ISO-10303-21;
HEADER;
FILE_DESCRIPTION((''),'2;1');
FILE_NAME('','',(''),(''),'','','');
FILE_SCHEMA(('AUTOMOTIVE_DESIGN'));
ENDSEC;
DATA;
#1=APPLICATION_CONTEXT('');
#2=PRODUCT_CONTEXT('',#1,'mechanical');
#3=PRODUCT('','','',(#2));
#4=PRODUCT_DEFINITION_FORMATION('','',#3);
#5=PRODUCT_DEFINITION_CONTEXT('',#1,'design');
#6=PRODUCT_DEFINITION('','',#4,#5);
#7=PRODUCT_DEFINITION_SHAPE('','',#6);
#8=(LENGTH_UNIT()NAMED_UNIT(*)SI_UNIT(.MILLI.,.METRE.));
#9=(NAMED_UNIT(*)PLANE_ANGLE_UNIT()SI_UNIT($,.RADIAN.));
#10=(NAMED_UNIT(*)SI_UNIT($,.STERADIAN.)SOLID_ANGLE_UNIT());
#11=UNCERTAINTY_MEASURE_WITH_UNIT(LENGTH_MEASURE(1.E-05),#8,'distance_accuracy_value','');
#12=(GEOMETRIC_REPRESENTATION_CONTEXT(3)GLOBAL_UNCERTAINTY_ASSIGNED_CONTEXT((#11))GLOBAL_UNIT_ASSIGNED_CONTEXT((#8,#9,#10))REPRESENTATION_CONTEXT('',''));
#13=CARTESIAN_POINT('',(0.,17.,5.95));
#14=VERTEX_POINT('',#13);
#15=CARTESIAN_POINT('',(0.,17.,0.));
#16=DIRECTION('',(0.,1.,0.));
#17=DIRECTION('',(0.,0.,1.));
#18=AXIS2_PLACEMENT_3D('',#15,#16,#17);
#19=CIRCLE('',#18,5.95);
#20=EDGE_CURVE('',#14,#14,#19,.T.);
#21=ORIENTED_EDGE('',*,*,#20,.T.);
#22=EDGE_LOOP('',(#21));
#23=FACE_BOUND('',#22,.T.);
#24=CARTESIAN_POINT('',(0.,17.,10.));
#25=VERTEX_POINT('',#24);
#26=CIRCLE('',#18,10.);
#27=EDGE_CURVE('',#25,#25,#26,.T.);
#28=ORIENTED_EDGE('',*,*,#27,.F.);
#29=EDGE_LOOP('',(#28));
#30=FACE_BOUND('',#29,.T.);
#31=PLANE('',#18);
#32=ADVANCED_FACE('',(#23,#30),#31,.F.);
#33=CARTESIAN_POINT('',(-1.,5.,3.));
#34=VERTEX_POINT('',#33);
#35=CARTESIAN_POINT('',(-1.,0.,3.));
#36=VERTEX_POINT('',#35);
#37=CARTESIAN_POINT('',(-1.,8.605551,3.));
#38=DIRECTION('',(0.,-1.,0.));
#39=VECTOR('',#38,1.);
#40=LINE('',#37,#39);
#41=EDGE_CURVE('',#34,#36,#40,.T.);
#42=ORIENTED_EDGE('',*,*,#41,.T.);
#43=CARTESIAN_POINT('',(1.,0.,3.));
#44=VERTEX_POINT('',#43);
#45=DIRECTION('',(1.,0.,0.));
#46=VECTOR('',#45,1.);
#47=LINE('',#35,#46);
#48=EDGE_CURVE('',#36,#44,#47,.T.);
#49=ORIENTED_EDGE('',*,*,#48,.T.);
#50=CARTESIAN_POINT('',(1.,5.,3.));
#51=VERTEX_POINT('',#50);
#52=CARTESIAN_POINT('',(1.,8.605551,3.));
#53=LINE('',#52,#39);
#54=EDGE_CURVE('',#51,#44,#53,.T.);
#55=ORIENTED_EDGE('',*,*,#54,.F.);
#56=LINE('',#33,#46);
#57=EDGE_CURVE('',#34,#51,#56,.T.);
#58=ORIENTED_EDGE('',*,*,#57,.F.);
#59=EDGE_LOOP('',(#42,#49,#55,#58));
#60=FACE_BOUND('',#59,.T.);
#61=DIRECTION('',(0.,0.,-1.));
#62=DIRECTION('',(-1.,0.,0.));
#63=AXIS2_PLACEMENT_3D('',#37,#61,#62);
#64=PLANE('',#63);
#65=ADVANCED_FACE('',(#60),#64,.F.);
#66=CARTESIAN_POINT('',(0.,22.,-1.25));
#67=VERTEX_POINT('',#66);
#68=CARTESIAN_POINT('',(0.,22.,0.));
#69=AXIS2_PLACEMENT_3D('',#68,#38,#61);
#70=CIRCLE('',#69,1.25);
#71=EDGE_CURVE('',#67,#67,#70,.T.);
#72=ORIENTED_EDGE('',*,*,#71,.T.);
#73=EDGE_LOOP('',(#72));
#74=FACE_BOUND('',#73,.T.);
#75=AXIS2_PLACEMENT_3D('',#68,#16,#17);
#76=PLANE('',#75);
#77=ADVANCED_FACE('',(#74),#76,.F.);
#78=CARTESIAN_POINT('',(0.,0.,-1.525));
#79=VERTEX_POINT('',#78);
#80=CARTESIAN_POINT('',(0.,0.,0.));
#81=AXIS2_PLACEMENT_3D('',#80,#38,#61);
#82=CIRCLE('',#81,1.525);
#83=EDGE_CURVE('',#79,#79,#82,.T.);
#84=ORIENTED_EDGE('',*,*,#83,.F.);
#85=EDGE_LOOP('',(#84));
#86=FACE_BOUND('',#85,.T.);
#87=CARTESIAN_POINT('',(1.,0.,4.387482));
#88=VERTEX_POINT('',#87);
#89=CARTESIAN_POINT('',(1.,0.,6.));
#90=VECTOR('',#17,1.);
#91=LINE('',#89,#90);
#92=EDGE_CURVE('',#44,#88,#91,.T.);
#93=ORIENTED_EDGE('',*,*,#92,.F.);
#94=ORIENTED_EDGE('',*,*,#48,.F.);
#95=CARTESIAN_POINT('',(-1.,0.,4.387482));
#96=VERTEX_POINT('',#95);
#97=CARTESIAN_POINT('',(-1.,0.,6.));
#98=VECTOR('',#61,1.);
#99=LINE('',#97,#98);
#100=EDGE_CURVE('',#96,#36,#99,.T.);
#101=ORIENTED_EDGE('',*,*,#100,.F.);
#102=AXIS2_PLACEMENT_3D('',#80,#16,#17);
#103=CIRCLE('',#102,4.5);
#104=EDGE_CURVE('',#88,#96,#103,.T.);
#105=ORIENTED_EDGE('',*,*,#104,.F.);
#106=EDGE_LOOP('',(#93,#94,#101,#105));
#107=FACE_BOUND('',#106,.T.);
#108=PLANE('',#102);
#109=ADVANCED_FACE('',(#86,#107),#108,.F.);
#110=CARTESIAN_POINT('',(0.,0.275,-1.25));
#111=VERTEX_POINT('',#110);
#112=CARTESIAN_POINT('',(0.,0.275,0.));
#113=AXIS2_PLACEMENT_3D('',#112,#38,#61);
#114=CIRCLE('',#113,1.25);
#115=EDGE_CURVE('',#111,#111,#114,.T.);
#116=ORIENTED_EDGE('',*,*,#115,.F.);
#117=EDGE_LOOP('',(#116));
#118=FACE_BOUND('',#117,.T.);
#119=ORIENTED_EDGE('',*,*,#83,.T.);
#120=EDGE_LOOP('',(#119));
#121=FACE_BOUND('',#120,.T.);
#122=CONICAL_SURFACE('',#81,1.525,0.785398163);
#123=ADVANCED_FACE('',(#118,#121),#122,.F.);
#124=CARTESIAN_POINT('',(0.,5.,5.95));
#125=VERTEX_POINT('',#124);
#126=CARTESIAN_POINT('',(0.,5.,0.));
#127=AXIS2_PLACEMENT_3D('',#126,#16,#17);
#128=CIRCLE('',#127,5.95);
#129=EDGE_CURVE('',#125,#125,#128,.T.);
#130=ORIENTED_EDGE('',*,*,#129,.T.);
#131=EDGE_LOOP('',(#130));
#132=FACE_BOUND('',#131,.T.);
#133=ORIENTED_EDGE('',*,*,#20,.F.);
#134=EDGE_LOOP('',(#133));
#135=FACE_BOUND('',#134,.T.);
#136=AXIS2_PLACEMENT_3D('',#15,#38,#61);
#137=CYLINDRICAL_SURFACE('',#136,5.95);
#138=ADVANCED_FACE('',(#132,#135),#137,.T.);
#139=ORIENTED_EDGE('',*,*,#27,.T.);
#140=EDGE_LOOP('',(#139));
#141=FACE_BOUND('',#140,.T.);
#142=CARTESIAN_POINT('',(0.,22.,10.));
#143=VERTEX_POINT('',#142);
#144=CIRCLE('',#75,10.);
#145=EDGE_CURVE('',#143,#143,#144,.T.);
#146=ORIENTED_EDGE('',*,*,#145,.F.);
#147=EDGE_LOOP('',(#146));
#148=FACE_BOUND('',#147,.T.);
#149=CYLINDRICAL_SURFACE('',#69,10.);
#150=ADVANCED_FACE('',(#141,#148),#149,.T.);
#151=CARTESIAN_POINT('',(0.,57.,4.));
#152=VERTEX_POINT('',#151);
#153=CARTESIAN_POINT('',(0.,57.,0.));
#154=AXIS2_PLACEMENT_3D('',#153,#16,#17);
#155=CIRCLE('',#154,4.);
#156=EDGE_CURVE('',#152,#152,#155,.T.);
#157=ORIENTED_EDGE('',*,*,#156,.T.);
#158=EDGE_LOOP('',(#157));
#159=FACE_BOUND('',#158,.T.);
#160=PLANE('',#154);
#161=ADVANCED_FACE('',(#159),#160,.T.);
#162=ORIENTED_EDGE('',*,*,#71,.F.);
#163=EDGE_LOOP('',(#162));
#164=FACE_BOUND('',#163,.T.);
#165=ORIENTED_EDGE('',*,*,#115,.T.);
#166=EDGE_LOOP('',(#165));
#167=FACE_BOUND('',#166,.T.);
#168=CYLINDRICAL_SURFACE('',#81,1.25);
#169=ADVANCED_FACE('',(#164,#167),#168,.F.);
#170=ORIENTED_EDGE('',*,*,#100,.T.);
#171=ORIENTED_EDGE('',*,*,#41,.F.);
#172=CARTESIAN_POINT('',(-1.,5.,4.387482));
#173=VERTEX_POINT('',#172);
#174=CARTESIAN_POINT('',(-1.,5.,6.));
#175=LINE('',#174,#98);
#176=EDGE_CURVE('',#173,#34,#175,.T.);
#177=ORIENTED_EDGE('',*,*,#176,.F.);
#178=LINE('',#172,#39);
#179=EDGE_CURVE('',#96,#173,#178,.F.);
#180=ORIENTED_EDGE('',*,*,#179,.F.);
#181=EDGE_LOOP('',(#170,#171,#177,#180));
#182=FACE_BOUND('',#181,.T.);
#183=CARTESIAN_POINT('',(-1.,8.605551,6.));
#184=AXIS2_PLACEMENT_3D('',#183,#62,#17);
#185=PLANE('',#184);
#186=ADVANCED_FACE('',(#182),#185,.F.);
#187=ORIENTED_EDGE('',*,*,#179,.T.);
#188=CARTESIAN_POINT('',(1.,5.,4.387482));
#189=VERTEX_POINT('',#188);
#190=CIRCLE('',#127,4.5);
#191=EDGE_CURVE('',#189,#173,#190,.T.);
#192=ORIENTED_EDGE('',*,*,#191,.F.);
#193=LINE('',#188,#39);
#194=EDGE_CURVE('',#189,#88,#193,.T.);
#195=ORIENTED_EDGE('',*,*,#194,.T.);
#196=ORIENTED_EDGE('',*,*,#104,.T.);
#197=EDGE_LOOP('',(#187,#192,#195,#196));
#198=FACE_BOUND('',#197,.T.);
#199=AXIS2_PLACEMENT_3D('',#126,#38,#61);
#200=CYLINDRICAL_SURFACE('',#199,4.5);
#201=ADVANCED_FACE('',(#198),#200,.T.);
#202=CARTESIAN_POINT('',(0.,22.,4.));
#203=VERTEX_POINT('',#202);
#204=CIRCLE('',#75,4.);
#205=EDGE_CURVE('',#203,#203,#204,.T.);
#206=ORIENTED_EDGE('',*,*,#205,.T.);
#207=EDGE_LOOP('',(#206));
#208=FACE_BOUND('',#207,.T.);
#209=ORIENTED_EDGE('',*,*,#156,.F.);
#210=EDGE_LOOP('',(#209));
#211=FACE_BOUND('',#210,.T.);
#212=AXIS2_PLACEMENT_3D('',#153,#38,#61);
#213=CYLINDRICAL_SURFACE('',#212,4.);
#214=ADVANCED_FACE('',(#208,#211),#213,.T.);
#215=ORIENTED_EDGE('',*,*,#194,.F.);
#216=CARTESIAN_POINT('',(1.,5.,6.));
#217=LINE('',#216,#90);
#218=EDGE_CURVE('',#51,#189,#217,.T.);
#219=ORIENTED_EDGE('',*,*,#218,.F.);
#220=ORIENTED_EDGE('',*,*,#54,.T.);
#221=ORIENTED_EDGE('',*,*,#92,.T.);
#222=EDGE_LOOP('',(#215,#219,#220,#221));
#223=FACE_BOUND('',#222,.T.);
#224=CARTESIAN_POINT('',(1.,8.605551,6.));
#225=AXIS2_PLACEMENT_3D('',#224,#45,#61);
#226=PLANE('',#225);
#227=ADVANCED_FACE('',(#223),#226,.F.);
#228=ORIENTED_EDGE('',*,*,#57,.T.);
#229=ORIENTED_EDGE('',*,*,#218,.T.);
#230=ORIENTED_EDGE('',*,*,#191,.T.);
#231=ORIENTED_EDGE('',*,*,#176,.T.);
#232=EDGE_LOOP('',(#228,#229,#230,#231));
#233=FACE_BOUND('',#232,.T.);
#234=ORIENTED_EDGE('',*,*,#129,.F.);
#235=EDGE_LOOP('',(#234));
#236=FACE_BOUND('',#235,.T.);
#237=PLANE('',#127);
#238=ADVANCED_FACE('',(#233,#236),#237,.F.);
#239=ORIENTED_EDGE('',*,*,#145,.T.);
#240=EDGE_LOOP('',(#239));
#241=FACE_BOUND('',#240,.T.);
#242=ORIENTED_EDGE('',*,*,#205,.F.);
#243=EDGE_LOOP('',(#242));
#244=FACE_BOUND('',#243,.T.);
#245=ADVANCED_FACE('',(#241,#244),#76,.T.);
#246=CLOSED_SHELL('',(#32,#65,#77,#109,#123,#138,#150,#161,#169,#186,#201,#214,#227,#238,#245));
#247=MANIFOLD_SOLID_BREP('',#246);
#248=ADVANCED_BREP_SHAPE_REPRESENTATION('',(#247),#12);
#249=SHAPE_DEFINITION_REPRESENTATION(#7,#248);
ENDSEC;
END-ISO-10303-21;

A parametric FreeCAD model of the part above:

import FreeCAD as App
import Part
import Sketcher
from FreeCAD import Vector
Q = App.Units.Quantity

doc = App.newDocument("Part")
params = doc.addObject("Spreadsheet::Sheet", "Params")
for row, (alias, value) in enumerate([
    ("sketch1_diameter", "9 mm"),
    ("pad1_length", "5 mm"),
    ("sketch2_diameter", "11.9 mm"),
    ("pad2_length", "12 mm"),
    ("sketch3_diameter", "20 mm"),
    ("pad3_length", "5 mm"),
    ("sketch4_diameter", "2.5 mm"),
    ("hole_diameter", "2.5 mm"),
    ("hole_csink_diameter", "3.05 mm"),
    ("sketch5_width", "2 mm"),
    ("sketch5_height", "3 mm"),
    ("pocket1_length", "5 mm"),
    ("sketch6_diameter", "8 mm"),
    ("pad4_length", "35 mm"),
], start=1):
    params.set(f"A{row}", alias)
    params.set(f"B{row}", "=" + value)
    params.setAlias(f"B{row}", alias)

body = doc.addObject("PartDesign::Body", "Body")

# Sketch on XZ plane
sketch1 = body.newObject("Sketcher::SketchObject", "Sketch")
sketch1.AttachmentSupport = (doc.getObject("XZ_Plane"), [""])
sketch1.MapMode = "FlatFace"
sketch1.addGeometry(Part.Circle(Vector(0, 0, 0), Vector(0, 0, 1), 4.5), False)
sketch1.addConstraint([
    Sketcher.Constraint("Coincident", 0, 3, -1, 1),
    Sketcher.Constraint("Diameter", 0, Q("9 mm")),
])
sketch1.setExpression("Constraints[1]", "Params.sketch1_diameter")
pad1 = body.newObject("PartDesign::Pad", "Pad")
pad1.Profile = sketch1
pad1.setExpression("Length", "Params.pad1_length")
pad1.Reversed = True

# Sketch on XZ plane
sketch2 = body.newObject("Sketcher::SketchObject", "Sketch001")
sketch2.AttachmentSupport = (doc.getObject("XZ_Plane"), [""])
sketch2.MapMode = "FlatFace"
sketch2.AttachmentOffset = App.Placement(Vector(0, 0, -5), App.Rotation())
sketch2.addGeometry(Part.Circle(Vector(0, 0, 0), Vector(0, 0, 1), 5.95), False)
sketch2.addConstraint([
    Sketcher.Constraint("Coincident", 0, 3, -1, 1),
    Sketcher.Constraint("Diameter", 0, Q("11.9 mm")),
])
sketch2.setExpression("Constraints[1]", "Params.sketch2_diameter")
pad2 = body.newObject("PartDesign::Pad", "Pad001")
pad2.Profile = sketch2
pad2.setExpression("Length", "Params.pad2_length")
pad2.Reversed = True

# Sketch on XZ plane
sketch3 = body.newObject("Sketcher::SketchObject", "Sketch002")
sketch3.AttachmentSupport = (doc.getObject("XZ_Plane"), [""])
sketch3.MapMode = "FlatFace"
sketch3.AttachmentOffset = App.Placement(Vector(0, 0, -17), App.Rotation())
sketch3.addGeometry(Part.Circle(Vector(0, 0, 0), Vector(0, 0, 1), 10), False)
sketch3.addConstraint([
    Sketcher.Constraint("Coincident", 0, 3, -1, 1),
    Sketcher.Constraint("Diameter", 0, Q("20 mm")),
])
sketch3.setExpression("Constraints[1]", "Params.sketch3_diameter")
pad3 = body.newObject("PartDesign::Pad", "Pad002")
pad3.Profile = sketch3
pad3.setExpression("Length", "Params.pad3_length")
pad3.Reversed = True

# Sketch on XZ plane
sketch4 = body.newObject("Sketcher::SketchObject", "Sketch003")
sketch4.AttachmentSupport = (doc.getObject("XZ_Plane"), [""])
sketch4.MapMode = "FlatFace"
sketch4.addGeometry(Part.Circle(Vector(0, 0, 0), Vector(0, 0, 1), 1.25), False)
sketch4.addConstraint([
    Sketcher.Constraint("Coincident", 0, 3, -1, 1),
    Sketcher.Constraint("Diameter", 0, Q("2.5 mm")),
])
sketch4.setExpression("Constraints[1]", "Params.sketch4_diameter")
doc.recompute()
hole = body.newObject("PartDesign::Hole", "Hole")
hole.Profile = sketch4
hole.ThreadType = "None"
hole.setExpression("Diameter", "Params.hole_diameter")
hole.DepthType = "ThroughAll"
hole.HoleCutType = "Countersink"
hole.setExpression("HoleCutDiameter", "Params.hole_csink_diameter")
hole.HoleCutCountersinkAngle = 90

# Sketch on XZ plane
sketch5 = body.newObject("Sketcher::SketchObject", "Sketch004")
sketch5.AttachmentSupport = (doc.getObject("XZ_Plane"), [""])
sketch5.MapMode = "FlatFace"
sketch5.addGeometry([
    Part.LineSegment(Vector(-1, 6, 0), Vector(-1, 3, 0)),
    Part.LineSegment(Vector(-1, 3, 0), Vector(1, 3, 0)),
    Part.LineSegment(Vector(1, 3, 0), Vector(1, 6, 0)),
    Part.LineSegment(Vector(1, 6, 0), Vector(-1, 6, 0)),
], False)
sketch5.addConstraint([
    Sketcher.Constraint("Coincident", 0, 2, 1, 1),
    Sketcher.Constraint("Coincident", 1, 2, 2, 1),
    Sketcher.Constraint("Coincident", 2, 2, 3, 1),
    Sketcher.Constraint("Coincident", 3, 2, 0, 1),
    Sketcher.Constraint("Vertical", 0),
    Sketcher.Constraint("Horizontal", 1),
    Sketcher.Constraint("Vertical", 2),
    Sketcher.Constraint("Horizontal", 3),
    Sketcher.Constraint("DistanceX", 1, 1, 1, 2, Q("2 mm")),
    Sketcher.Constraint("DistanceY", 0, 2, 0, 1, Q("3 mm")),
    Sketcher.Constraint("DistanceX", 0, 2, -1, 1, Q("1 mm")),
    Sketcher.Constraint("DistanceY", -1, 1, 0, 2, Q("3 mm")),
])
sketch5.setExpression("Constraints[8]", "Params.sketch5_width")
sketch5.setExpression("Constraints[9]", "Params.sketch5_height")
pocket1 = body.newObject("PartDesign::Pocket", "Pocket")
pocket1.Profile = sketch5
pocket1.setExpression("Length", "Params.pocket1_length")

# Sketch on XZ plane
sketch6 = body.newObject("Sketcher::SketchObject", "Sketch005")
sketch6.AttachmentSupport = (doc.getObject("XZ_Plane"), [""])
sketch6.MapMode = "FlatFace"
sketch6.AttachmentOffset = App.Placement(Vector(0, 0, -22), App.Rotation())
sketch6.addGeometry(Part.Circle(Vector(0, 0, 0), Vector(0, 0, 1), 4), False)
sketch6.addConstraint([
    Sketcher.Constraint("Coincident", 0, 3, -1, 1),
    Sketcher.Constraint("Diameter", 0, Q("8 mm")),
])
sketch6.setExpression("Constraints[1]", "Params.sketch6_diameter")
pad4 = body.newObject("PartDesign::Pad", "Pad003")
pad4.Profile = sketch6
pad4.setExpression("Length", "Params.pad4_length")
pad4.Reversed = True

doc.recompute()
